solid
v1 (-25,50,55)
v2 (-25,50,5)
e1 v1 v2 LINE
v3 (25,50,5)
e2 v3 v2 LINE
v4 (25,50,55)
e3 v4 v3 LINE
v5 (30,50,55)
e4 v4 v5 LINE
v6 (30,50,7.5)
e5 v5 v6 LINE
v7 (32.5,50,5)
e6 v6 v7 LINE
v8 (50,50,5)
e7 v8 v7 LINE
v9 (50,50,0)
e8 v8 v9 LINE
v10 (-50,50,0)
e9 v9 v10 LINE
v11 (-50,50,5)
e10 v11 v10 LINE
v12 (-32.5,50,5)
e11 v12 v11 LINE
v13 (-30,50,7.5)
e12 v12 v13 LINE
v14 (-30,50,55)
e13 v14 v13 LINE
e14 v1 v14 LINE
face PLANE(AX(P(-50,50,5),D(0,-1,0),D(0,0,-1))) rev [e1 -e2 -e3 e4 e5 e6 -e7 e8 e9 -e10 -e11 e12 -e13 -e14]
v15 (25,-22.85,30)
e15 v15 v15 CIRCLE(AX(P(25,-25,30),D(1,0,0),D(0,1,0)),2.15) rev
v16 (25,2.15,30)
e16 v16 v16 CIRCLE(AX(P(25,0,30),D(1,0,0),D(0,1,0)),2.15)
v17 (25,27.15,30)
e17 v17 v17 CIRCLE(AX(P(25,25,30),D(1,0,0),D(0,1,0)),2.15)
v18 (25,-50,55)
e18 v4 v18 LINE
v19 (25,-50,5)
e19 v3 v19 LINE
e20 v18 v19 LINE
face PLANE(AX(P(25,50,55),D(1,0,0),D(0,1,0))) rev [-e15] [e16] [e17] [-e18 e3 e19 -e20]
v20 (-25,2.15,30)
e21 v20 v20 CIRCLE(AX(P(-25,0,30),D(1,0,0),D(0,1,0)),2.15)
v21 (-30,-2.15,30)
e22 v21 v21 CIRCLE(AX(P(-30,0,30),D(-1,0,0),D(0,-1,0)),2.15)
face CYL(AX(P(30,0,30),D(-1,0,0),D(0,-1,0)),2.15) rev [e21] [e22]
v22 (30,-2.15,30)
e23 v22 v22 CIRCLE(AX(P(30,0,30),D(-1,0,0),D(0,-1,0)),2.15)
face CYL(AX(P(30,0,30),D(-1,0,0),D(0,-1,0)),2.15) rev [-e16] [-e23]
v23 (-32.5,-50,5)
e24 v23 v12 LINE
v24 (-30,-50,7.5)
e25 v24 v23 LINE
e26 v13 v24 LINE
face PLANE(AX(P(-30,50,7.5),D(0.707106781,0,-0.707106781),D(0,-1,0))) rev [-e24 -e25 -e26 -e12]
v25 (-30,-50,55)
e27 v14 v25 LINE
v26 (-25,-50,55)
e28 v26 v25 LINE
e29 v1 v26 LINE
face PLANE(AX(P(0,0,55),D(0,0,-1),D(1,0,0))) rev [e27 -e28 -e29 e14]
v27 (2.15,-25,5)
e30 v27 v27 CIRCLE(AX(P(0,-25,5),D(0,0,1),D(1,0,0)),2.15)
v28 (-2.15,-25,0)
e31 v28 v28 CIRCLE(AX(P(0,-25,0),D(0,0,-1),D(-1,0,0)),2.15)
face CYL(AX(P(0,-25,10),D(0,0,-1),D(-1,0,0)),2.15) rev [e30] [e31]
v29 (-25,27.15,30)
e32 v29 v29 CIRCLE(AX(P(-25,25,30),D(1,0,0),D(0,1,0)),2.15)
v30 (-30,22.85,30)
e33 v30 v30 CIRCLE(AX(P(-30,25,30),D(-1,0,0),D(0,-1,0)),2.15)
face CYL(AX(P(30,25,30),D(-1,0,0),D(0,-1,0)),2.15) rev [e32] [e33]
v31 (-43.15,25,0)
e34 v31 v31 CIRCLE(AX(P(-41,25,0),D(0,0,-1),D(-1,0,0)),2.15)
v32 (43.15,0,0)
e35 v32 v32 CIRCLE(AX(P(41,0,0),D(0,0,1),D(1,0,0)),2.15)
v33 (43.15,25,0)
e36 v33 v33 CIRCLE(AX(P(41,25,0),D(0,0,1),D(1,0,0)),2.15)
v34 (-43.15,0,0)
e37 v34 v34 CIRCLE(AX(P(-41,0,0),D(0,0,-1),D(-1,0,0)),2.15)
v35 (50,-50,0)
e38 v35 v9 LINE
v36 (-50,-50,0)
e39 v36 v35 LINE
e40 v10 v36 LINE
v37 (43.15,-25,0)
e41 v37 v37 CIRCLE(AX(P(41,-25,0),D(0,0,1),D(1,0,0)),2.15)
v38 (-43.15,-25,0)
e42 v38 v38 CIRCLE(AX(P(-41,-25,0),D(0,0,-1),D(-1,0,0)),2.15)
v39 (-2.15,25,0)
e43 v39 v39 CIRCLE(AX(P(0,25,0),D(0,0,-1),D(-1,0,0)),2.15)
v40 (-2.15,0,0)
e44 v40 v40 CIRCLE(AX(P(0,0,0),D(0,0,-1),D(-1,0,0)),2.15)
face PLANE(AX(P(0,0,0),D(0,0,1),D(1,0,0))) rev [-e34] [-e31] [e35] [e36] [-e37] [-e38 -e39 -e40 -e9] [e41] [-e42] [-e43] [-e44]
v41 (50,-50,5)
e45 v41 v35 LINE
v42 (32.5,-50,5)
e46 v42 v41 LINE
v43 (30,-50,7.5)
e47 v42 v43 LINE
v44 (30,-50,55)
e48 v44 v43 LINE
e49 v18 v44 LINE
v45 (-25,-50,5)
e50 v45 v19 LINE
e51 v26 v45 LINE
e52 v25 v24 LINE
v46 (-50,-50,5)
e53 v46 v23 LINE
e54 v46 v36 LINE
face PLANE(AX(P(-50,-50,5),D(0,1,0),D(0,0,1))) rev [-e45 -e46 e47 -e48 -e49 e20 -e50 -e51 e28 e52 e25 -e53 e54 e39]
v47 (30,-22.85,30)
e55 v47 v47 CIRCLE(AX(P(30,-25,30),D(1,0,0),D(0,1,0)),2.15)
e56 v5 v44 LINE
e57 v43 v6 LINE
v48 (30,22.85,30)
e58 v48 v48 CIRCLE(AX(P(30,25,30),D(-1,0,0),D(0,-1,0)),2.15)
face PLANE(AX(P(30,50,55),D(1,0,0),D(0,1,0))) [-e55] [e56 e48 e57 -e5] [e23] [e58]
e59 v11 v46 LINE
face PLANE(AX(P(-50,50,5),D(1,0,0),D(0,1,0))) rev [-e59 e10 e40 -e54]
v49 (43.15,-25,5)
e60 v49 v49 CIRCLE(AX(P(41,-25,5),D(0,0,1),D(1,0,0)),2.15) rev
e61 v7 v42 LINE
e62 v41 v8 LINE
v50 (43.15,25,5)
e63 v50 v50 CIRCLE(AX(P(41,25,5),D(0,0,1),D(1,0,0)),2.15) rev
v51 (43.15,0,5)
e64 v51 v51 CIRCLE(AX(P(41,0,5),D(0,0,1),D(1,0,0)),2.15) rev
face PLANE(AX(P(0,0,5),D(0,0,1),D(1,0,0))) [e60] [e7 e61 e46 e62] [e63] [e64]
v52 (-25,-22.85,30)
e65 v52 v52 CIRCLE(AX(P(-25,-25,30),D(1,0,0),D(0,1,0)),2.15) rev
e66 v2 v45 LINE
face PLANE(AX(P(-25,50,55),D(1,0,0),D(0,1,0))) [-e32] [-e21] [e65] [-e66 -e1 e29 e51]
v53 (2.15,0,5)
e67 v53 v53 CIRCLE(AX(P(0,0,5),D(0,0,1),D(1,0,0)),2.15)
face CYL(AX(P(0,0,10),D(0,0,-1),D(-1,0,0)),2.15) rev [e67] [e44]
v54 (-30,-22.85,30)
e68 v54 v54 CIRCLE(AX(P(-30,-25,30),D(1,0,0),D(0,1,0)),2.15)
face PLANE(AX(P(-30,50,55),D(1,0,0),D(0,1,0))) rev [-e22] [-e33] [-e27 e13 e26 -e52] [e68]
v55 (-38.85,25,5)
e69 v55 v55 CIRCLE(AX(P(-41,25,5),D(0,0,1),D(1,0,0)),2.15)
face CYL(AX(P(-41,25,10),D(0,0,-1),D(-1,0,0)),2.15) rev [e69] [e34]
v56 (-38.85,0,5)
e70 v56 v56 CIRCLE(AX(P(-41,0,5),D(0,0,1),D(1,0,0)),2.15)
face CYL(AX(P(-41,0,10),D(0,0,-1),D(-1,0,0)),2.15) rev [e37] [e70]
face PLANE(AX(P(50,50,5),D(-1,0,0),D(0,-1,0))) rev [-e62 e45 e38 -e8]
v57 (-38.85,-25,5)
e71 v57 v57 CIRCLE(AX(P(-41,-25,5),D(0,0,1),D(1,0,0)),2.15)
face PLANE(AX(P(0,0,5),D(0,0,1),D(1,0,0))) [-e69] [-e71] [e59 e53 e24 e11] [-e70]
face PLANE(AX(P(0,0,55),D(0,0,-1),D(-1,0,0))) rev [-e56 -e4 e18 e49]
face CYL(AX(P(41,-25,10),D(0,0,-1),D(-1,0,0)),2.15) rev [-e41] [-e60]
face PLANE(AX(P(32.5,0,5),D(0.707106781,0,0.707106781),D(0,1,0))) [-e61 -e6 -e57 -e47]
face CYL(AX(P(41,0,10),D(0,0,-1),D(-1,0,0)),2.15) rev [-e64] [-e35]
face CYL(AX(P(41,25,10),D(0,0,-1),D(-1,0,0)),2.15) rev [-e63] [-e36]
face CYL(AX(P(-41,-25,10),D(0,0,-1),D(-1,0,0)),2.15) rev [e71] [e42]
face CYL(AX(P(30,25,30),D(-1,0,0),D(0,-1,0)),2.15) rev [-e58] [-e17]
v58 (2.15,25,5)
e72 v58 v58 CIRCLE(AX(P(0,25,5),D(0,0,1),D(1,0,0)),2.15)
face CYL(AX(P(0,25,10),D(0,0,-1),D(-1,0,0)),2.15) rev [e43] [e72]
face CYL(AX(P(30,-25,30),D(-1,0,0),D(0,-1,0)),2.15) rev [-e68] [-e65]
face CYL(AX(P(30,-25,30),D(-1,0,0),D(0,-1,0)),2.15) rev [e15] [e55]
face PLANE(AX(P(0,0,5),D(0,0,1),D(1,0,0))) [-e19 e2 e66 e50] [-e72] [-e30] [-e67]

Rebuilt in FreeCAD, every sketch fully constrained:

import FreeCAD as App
import Part
import Sketcher
from FreeCAD import Vector
Q = App.Units.Quantity


def edges_at(feature, points):
    """Names of the edges that pass closest to the given points."""
    edges = feature.Shape.Edges
    near = lambda p: min(range(len(edges)), key=lambda i: edges[i].distToShape(Part.Vertex(*p))[0])
    return sorted({f"Edge{near(p) + 1}" for p in points})


def add_polygon(sketch, points):
    """Adds a closed chain of lines whose ends are joined by coincident constraints."""
    first, n = sketch.GeometryCount, len(points)
    for a, b in zip(points, points[1:] + points[:1]):
        sketch.addGeometry(Part.LineSegment(App.Vector(*a, 0), App.Vector(*b, 0)), False)
    for i in range(n):
        sketch.addConstraint(Sketcher.Constraint("Coincident", first + i, 2, first + (i + 1) % n, 1))

doc = App.newDocument("Part")
body = doc.addObject("PartDesign::Body", "Body")

# Sketch on XY plane
sketch1 = doc.addObject("Sketcher::SketchObject", "Sketch")
body.addObject(sketch1)
sketch1.AttachmentSupport = (doc.XY_Plane, [""])
sketch1.MapMode = "FlatFace"
add_polygon(sketch1, [(-50, 50), (-50, -50), (50, -50), (50, 50)])  # lines 0-3
sketch1.addConstraint([
    Sketcher.Constraint("Vertical", 0),
    Sketcher.Constraint("Horizontal", 1),
    Sketcher.Constraint("Vertical", 2),
    Sketcher.Constraint("Horizontal", 3),
    Sketcher.Constraint("Symmetric", 0, 2, 2, 2, -1, 1),
    Sketcher.Constraint("Equal", 3, 0),
    Sketcher.Constraint("DistanceX", 1, 1, 1, 2, Q("100 mm")),
])
pad1 = doc.addObject("PartDesign::Pad", "Pad")
body.addObject(pad1)
pad1.Profile = sketch1
pad1.Length = 5

# Sketch on XY plane
sketch2 = doc.addObject("Sketcher::SketchObject", "Sketch001")
body.addObject(sketch2)
sketch2.AttachmentSupport = (doc.XY_Plane, [""])
sketch2.MapMode = "FlatFace"
sketch2.AttachmentOffset = App.Placement(Vector(0, 0, 5), App.Rotation())
add_polygon(sketch2, [(25, 50), (25, -50), (30, -50), (30, 50)])  # lines 0-3
sketch2.addConstraint([
    Sketcher.Constraint("Vertical", 0),
    Sketcher.Constraint("Horizontal", 1),
    Sketcher.Constraint("Vertical", 2),
    Sketcher.Constraint("Horizontal", 3),
    Sketcher.Constraint("DistanceX", 1, 1, 1, 2, Q("5 mm")),
    Sketcher.Constraint("DistanceY", 0, 2, 0, 1, Q("100 mm")),
    Sketcher.Constraint("DistanceX", -1, 1, 0, 2, Q("25 mm")),
    Sketcher.Constraint("DistanceY", 0, 2, -1, 1, Q("50 mm")),
])
pad2 = doc.addObject("PartDesign::Pad", "Pad001")
body.addObject(pad2)
pad2.Profile = sketch2
pad2.Length = 50

# Sketch on XY plane
sketch3 = doc.addObject("Sketcher::SketchObject", "Sketch002")
body.addObject(sketch3)
sketch3.AttachmentSupport = (doc.XY_Plane, [""])
sketch3.MapMode = "FlatFace"
sketch3.addGeometry(Part.Circle(Vector(0, 25, 0), Vector(0, 0, 1), 2.1), False)
sketch3.addConstraint([
    Sketcher.Constraint("PointOnObject", 0, 3, -2),
    Sketcher.Constraint("Diameter", 0, Q("4.3 mm")),
    Sketcher.Constraint("DistanceY", -1, 1, 0, 3, Q("25 mm")),
])
pocket1 = doc.addObject("PartDesign::Pocket", "Pocket")
body.addObject(pocket1)
pocket1.Profile = sketch3
pocket1.Length = 10
pocket1.Reversed = True
doc.recompute()

mirrored = doc.addObject("PartDesign::Mirrored", "Mirrored")
body.addObject(mirrored)
mirrored.Originals = [pad2]
mirrored.MirrorPlane = (doc.YZ_Plane, [""])
body.Tip = mirrored
doc.recompute()

linearpattern = doc.addObject("PartDesign::LinearPattern", "LinearPattern")
body.addObject(linearpattern)
linearpattern.Originals = [pocket1]
linearpattern.Direction = (doc.Y_Axis, [""])
linearpattern.Mode = "offset"
linearpattern.Offset = 25
linearpattern.Occurrences = 3
linearpattern.Reversed = True
body.Tip = linearpattern
doc.recompute()

datumplane = doc.addObject("PartDesign::Plane", "DatumPlane")
body.addObject(datumplane)
datumplane.AttachmentSupport = (doc.YZ_Plane, [""])
datumplane.MapMode = "FlatFace"
datumplane.AttachmentOffset = App.Placement(Vector(0, 0, 20.5), App.Rotation())
mirrored2 = doc.addObject("PartDesign::Mirrored", "Mirrored001")
body.addObject(mirrored2)
mirrored2.Originals = [pocket1]
mirrored2.MirrorPlane = (datumplane, [""])
body.Tip = mirrored2

# Sketch on XY plane
sketch4 = doc.addObject("Sketcher::SketchObject", "Sketch003")
body.addObject(sketch4)
sketch4.AttachmentSupport = (doc.XY_Plane, [""])
sketch4.MapMode = "FlatFace"
sketch4.addGeometry(Part.Circle(Vector(41, 0, 0), Vector(0, 0, 1), 2.1), False)
sketch4.addConstraint([
    Sketcher.Constraint("PointOnObject", 0, 3, -1),
    Sketcher.Constraint("Diameter", 0, Q("4.3 mm")),
    Sketcher.Constraint("DistanceX", -1, 1, 0, 3, Q("41 mm")),
])
pocket2 = doc.addObject("PartDesign::Pocket", "Pocket001")
body.addObject(pocket2)
pocket2.Profile = sketch4
pocket2.Length = 10
pocket2.Reversed = True

# Sketch on XY plane
sketch5 = doc.addObject("Sketcher::SketchObject", "Sketch004")
body.addObject(sketch5)
sketch5.AttachmentSupport = (doc.XY_Plane, [""])
sketch5.MapMode = "FlatFace"
sketch5.addGeometry(Part.Circle(Vector(41, -25, 0), Vector(0, 0, 1), 2.1), False)
sketch5.addConstraint([
    Sketcher.Constraint("Diameter", 0, Q("4.3 mm")),
    Sketcher.Constraint("DistanceX", -1, 1, 0, 3, Q("41 mm")),
    Sketcher.Constraint("DistanceY", 0, 3, -1, 1, Q("25 mm")),
])
pocket3 = doc.addObject("PartDesign::Pocket", "Pocket002")
body.addObject(pocket3)
pocket3.Profile = sketch5
pocket3.Length = 10
pocket3.Reversed = True

# Sketch on XY plane
sketch6 = doc.addObject("Sketcher::SketchObject", "Sketch005")
body.addObject(sketch6)
sketch6.AttachmentSupport = (doc.XY_Plane, [""])
sketch6.MapMode = "FlatFace"
sketch6.addGeometry(Part.Circle(Vector(-41, 25, 0), Vector(0, 0, 1), 2.1), False)
sketch6.addConstraint([
    Sketcher.Constraint("Diameter", 0, Q("4.3 mm")),
    Sketcher.Constraint("DistanceX", 0, 3, -1, 1, Q("41 mm")),
    Sketcher.Constraint("DistanceY", -1, 1, 0, 3, Q("25 mm")),
])
pocket4 = doc.addObject("PartDesign::Pocket", "Pocket003")
body.addObject(pocket4)
pocket4.Profile = sketch6
pocket4.Length = 10
pocket4.Reversed = True

# Sketch on XY plane
sketch7 = doc.addObject("Sketcher::SketchObject", "Sketch006")
body.addObject(sketch7)
sketch7.AttachmentSupport = (doc.XY_Plane, [""])
sketch7.MapMode = "FlatFace"
sketch7.addGeometry(Part.Circle(Vector(-41, 0, 0), Vector(0, 0, 1), 2.1), False)
sketch7.addConstraint([
    Sketcher.Constraint("PointOnObject", 0, 3, -1),
    Sketcher.Constraint("Diameter", 0, Q("4.3 mm")),
    Sketcher.Constraint("DistanceX", 0, 3, -1, 1, Q("41 mm")),
])
pocket5 = doc.addObject("PartDesign::Pocket", "Pocket004")
body.addObject(pocket5)
pocket5.Profile = sketch7
pocket5.Length = 10
pocket5.Reversed = True

# Sketch on XY plane
sketch8 = doc.addObject("Sketcher::SketchObject", "Sketch007")
body.addObject(sketch8)
sketch8.AttachmentSupport = (doc.XY_Plane, [""])
sketch8.MapMode = "FlatFace"
sketch8.addGeometry(Part.Circle(Vector(-41, -25, 0), Vector(0, 0, 1), 2.1), False)
sketch8.addConstraint([
    Sketcher.Constraint("Diameter", 0, Q("4.3 mm")),
    Sketcher.Constraint("DistanceX", 0, 3, -1, 1, Q("41 mm")),
    Sketcher.Constraint("DistanceY", 0, 3, -1, 1, Q("25 mm")),
])
pocket6 = doc.addObject("PartDesign::Pocket", "Pocket005")
body.addObject(pocket6)
pocket6.Profile = sketch8
pocket6.Length = 10
pocket6.Reversed = True

# Sketch on XY plane
sketch9 = doc.addObject("Sketcher::SketchObject", "Sketch008")
body.addObject(sketch9)
sketch9.AttachmentSupport = (doc.XY_Plane, [""])
sketch9.MapMode = "FlatFace"
sketch9.addGeometry(Part.Circle(Vector(0, 25, 0), Vector(0, 0, 1), 2.1), False)
sketch9.addConstraint([
    Sketcher.Constraint("PointOnObject", 0, 3, -2),
    Sketcher.Constraint("Diameter", 0, Q("4.3 mm")),
    Sketcher.Constraint("DistanceY", -1, 1, 0, 3, Q("25 mm")),
])
pocket7 = doc.addObject("PartDesign::Pocket", "Pocket006")
body.addObject(pocket7)
pocket7.Profile = sketch9
pocket7.Length = 10
pocket7.Reversed = True
doc.recompute()

chamfer = doc.addObject("PartDesign::Chamfer", "Chamfer")
body.addObject(chamfer)
chamfer.Base = (pocket7, edges_at(pocket7, [(30, 0, 5), (-30, 0, 5)]))
chamfer.Size = 2.5

# Sketch on YZ plane
sketch10 = doc.addObject("Sketcher::SketchObject", "Sketch009")
body.addObject(sketch10)
sketch10.AttachmentSupport = (doc.YZ_Plane, [""])
sketch10.MapMode = "FlatFace"
sketch10.AttachmentOffset = App.Placement(Vector(0, 0, -30), App.Rotation())
sketch10.addGeometry(Part.Circle(Vector(25, 30, 0), Vector(0, 0, 1), 2.1), False)
sketch10.addConstraint([
    Sketcher.Constraint("Diameter", 0, Q("4.3 mm")),
    Sketcher.Constraint("DistanceX", -1, 1, 0, 3, Q("25 mm")),
    Sketcher.Constraint("DistanceY", -1, 1, 0, 3, Q("30 mm")),
])
pocket8 = doc.addObject("PartDesign::Pocket", "Pocket007")
body.addObject(pocket8)
pocket8.Profile = sketch10
pocket8.Length = 60
pocket8.Reversed = True

# Sketch on YZ plane
sketch11 = doc.addObject("Sketcher::SketchObject", "Sketch010")
body.addObject(sketch11)
sketch11.AttachmentSupport = (doc.YZ_Plane, [""])
sketch11.MapMode = "FlatFace"
sketch11.AttachmentOffset = App.Placement(Vector(0, 0, -30), App.Rotation())
sketch11.addGeometry([
    Part.Circle(Vector(0, 30, 0), Vector(0, 0, 1), 2.1),
    Part.Circle(Vector(25, 30, 0), Vector(0, 0, 1), 2.1),
], False)
sketch11.addConstraint([
    Sketcher.Constraint("Equal", 0, 1),
    Sketcher.Constraint("PointOnObject", 0, 3, -2),
    Sketcher.Constraint("Horizontal", 0, 3, 1, 3),
    Sketcher.Constraint("Diameter", 0, Q("4.3 mm")),
    Sketcher.Constraint("DistanceY", -1, 1, 0, 3, Q("30 mm")),
    Sketcher.Constraint("DistanceX", -1, 1, 1, 3, Q("25 mm")),
])
pocket9 = doc.addObject("PartDesign::Pocket", "Pocket008")
body.addObject(pocket9)
pocket9.Profile = sketch11
pocket9.Length = 60
pocket9.Reversed = True
doc.recompute()

mirrored3 = doc.addObject("PartDesign::Mirrored", "Mirrored002")
body.addObject(mirrored3)
mirrored3.Originals = [pocket8]
mirrored3.MirrorPlane = (doc.XZ_Plane, [""])
body.Tip = mirrored3

doc.recompute()
